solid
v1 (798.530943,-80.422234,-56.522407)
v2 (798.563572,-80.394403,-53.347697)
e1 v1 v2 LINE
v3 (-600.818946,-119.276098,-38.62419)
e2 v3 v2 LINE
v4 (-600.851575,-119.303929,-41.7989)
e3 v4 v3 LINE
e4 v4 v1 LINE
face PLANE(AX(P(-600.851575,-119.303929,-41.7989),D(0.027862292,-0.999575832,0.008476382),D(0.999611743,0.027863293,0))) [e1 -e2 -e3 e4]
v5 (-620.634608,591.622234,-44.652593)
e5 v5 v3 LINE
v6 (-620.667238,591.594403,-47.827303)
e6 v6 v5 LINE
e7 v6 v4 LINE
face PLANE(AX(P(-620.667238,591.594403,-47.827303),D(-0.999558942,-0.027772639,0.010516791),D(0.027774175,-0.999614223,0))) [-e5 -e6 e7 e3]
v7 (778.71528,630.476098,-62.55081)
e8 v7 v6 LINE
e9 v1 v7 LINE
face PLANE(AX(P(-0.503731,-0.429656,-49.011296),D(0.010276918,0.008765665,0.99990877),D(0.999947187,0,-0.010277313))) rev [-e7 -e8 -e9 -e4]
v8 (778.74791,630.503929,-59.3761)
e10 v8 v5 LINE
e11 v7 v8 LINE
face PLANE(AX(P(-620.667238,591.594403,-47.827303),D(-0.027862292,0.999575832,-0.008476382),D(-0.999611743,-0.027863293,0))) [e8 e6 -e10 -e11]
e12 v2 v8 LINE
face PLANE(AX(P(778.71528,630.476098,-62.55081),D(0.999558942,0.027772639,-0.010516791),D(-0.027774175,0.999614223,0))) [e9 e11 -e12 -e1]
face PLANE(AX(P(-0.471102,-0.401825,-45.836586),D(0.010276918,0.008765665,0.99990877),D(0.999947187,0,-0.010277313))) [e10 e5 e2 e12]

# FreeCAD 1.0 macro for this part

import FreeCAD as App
import Part
import Sketcher

V = App.Vector
Q = App.Units.Quantity


def add_polygon(sketch, points):
    """Adds a closed chain of lines whose ends are joined by coincident constraints."""
    first, n = sketch.GeometryCount, len(points)
    for a, b in zip(points, points[1:] + points[:1]):
        sketch.addGeometry(Part.LineSegment(App.Vector(*a, 0), App.Vector(*b, 0)), False)
    for i in range(n):
        sketch.addConstraint(Sketcher.Constraint("Coincident", first + i, 2, first + (i + 1) % n, 1))

doc = App.newDocument("Part")
body = doc.addObject("PartDesign::Body", "Body")

# Sketch on an angled plane
sketch1 = body.newObject("Sketcher::SketchObject", "Sketch")
sketch1.Placement = App.Placement(V(7.177148, -2.347993, -45.898132), App.Rotation(V(0.999558942, 0.027772639, -0.01051679), V(-0.027862292, 0.999575832, -0.008476382), V(0.010276918, 0.008765665, 0.99990877), "ZXY"))
add_polygon(sketch1, [(-611.051833, 611.200001), (-611.051833, -100), (788.948168, -100), (788.948168, 611.200001)])  # lines 0-3
sketch1.addConstraint(Sketcher.Constraint("Vertical", 0))
sketch1.addConstraint(Sketcher.Constraint("Horizontal", 1))
sketch1.addConstraint(Sketcher.Constraint("Vertical", 2))
sketch1.addConstraint(Sketcher.Constraint("Horizontal", 3))
sketch1.addConstraint(Sketcher.Constraint("DistanceY", 0, 2, 0, 1, Q("28 in")))
sketch1.addConstraint(Sketcher.Constraint("DistanceX", 1, 1, 1, 2, Q("1400.000001 mm")))
sketch1.addConstraint(Sketcher.Constraint("DistanceY", 0, 2, -1, 1, Q("100 mm")))
sketch1.addConstraint(Sketcher.Constraint("DistanceX", 0, 2, -1, 1, Q("611.051833 mm")))
pad1 = body.newObject("PartDesign::Pad", "Pad")
pad1.Profile = sketch1
pad1.Length = Q("0.125 in")
pad1.Reversed = True

doc.recompute()
